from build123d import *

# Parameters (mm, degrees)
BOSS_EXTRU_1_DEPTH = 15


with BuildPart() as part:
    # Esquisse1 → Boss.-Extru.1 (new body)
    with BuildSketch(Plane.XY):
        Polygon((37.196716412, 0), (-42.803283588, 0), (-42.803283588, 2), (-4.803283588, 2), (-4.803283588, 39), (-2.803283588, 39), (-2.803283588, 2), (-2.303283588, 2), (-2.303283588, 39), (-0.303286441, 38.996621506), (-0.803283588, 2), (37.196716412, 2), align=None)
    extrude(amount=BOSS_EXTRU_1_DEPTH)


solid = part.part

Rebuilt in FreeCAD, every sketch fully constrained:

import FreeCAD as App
import Part
import Sketcher
Q = App.Units.Quantity

doc = App.newDocument("Part")
body = doc.addObject("PartDesign::Body", "Body")

sketch1 = body.newObject("Sketcher::SketchObject", "Sketch")
sketch1.AttachmentSupport = (doc.getObject("XY_Plane"), [""])
sketch1.MapMode = "FlatFace"
sketch1.addGeometry([
    Part.LineSegment(App.Vector(-42.8, 0, 0), App.Vector(37.2, 0, 0)),
    Part.LineSegment(App.Vector(37.2, 0, 0), App.Vector(37.2, 2, 0)),
    Part.LineSegment(App.Vector(37.2, 2, 0), App.Vector(-0.8, 2, 0)),
    Part.LineSegment(App.Vector(-0.8, 2, 0), App.Vector(-0.3, 39, 0)),
    Part.LineSegment(App.Vector(-0.3, 39, 0), App.Vector(-2.3, 39, 0)),
    Part.LineSegment(App.Vector(-2.3, 39, 0), App.Vector(-2.3, 2, 0)),
    Part.LineSegment(App.Vector(-2.3, 2, 0), App.Vector(-2.8, 2, 0)),
    Part.LineSegment(App.Vector(-2.8, 2, 0), App.Vector(-2.8, 39, 0)),
    Part.LineSegment(App.Vector(-2.8, 39, 0), App.Vector(-4.8, 39, 0)),
    Part.LineSegment(App.Vector(-4.8, 39, 0), App.Vector(-4.8, 2, 0)),
    Part.LineSegment(App.Vector(-4.8, 2, 0), App.Vector(-42.8, 2, 0)),
    Part.LineSegment(App.Vector(-42.8, 2, 0), App.Vector(-42.8, 0, 0)),
], False)
sketch1.addConstraint([
    Sketcher.Constraint("Coincident", 0, 2, 1, 1),
    Sketcher.Constraint("Coincident", 1, 2, 2, 1),
    Sketcher.Constraint("Coincident", 2, 2, 3, 1),
    Sketcher.Constraint("Coincident", 3, 2, 4, 1),
    Sketcher.Constraint("Coincident", 4, 2, 5, 1),
    Sketcher.Constraint("Coincident", 5, 2, 6, 1),
    Sketcher.Constraint("Coincident", 6, 2, 7, 1),
    Sketcher.Constraint("Coincident", 7, 2, 8, 1),
    Sketcher.Constraint("Coincident", 8, 2, 9, 1),
    Sketcher.Constraint("Coincident", 9, 2, 10, 1),
    Sketcher.Constraint("Coincident", 10, 2, 11, 1),
    Sketcher.Constraint("Coincident", 11, 2, 0, 1),
    Sketcher.Constraint("Horizontal", 0),
    Sketcher.Constraint("Vertical", 1),
    Sketcher.Constraint("Horizontal", 2),
    Sketcher.Constraint("Vertical", 5),
    Sketcher.Constraint("Horizontal", 6),
    Sketcher.Constraint("Vertical", 7),
    Sketcher.Constraint("Horizontal", 8),
    Sketcher.Constraint("Vertical", 9),
    Sketcher.Constraint("Horizontal", 10),
    Sketcher.Constraint("Vertical", 11),
    Sketcher.Constraint("PointOnObject", 0, 2, -1),
    Sketcher.Constraint("Horizontal", 2, 2, 5, 2),
    Sketcher.Constraint("Horizontal", 4, 2, 7, 2),
    Sketcher.Constraint("Horizontal", 6, 2, 9, 2),
    Sketcher.Constraint("Equal", 2, 10),
    Sketcher.Constraint("Equal", 8, 1),
    Sketcher.Constraint("DistanceX", 0, 1, 0, 2, Q("80 mm")),
    Sketcher.Constraint("DistanceX", 2, 2, 2, 1, Q("38 mm")),
    Sketcher.Constraint("DistanceX", 8, 2, 8, 1, Q("2 mm")),
    Sketcher.Constraint("DistanceY", 5, 2, 5, 1, Q("37 mm")),
    Sketcher.Constraint("Distance", 3, Q("37 mm")),
    Sketcher.Constraint("Distance", 4, Q("2 mm")),
    Sketcher.Constraint("DistanceX", 6, 2, 6, 1, Q("0.5 mm")),
    Sketcher.Constraint("DistanceX", -1, 1, 0, 2, Q("37.196716 mm")),
])
pad1 = body.newObject("PartDesign::Pad", "Pad")
pad1.Profile = sketch1
pad1.Length = 15

doc.recompute()
